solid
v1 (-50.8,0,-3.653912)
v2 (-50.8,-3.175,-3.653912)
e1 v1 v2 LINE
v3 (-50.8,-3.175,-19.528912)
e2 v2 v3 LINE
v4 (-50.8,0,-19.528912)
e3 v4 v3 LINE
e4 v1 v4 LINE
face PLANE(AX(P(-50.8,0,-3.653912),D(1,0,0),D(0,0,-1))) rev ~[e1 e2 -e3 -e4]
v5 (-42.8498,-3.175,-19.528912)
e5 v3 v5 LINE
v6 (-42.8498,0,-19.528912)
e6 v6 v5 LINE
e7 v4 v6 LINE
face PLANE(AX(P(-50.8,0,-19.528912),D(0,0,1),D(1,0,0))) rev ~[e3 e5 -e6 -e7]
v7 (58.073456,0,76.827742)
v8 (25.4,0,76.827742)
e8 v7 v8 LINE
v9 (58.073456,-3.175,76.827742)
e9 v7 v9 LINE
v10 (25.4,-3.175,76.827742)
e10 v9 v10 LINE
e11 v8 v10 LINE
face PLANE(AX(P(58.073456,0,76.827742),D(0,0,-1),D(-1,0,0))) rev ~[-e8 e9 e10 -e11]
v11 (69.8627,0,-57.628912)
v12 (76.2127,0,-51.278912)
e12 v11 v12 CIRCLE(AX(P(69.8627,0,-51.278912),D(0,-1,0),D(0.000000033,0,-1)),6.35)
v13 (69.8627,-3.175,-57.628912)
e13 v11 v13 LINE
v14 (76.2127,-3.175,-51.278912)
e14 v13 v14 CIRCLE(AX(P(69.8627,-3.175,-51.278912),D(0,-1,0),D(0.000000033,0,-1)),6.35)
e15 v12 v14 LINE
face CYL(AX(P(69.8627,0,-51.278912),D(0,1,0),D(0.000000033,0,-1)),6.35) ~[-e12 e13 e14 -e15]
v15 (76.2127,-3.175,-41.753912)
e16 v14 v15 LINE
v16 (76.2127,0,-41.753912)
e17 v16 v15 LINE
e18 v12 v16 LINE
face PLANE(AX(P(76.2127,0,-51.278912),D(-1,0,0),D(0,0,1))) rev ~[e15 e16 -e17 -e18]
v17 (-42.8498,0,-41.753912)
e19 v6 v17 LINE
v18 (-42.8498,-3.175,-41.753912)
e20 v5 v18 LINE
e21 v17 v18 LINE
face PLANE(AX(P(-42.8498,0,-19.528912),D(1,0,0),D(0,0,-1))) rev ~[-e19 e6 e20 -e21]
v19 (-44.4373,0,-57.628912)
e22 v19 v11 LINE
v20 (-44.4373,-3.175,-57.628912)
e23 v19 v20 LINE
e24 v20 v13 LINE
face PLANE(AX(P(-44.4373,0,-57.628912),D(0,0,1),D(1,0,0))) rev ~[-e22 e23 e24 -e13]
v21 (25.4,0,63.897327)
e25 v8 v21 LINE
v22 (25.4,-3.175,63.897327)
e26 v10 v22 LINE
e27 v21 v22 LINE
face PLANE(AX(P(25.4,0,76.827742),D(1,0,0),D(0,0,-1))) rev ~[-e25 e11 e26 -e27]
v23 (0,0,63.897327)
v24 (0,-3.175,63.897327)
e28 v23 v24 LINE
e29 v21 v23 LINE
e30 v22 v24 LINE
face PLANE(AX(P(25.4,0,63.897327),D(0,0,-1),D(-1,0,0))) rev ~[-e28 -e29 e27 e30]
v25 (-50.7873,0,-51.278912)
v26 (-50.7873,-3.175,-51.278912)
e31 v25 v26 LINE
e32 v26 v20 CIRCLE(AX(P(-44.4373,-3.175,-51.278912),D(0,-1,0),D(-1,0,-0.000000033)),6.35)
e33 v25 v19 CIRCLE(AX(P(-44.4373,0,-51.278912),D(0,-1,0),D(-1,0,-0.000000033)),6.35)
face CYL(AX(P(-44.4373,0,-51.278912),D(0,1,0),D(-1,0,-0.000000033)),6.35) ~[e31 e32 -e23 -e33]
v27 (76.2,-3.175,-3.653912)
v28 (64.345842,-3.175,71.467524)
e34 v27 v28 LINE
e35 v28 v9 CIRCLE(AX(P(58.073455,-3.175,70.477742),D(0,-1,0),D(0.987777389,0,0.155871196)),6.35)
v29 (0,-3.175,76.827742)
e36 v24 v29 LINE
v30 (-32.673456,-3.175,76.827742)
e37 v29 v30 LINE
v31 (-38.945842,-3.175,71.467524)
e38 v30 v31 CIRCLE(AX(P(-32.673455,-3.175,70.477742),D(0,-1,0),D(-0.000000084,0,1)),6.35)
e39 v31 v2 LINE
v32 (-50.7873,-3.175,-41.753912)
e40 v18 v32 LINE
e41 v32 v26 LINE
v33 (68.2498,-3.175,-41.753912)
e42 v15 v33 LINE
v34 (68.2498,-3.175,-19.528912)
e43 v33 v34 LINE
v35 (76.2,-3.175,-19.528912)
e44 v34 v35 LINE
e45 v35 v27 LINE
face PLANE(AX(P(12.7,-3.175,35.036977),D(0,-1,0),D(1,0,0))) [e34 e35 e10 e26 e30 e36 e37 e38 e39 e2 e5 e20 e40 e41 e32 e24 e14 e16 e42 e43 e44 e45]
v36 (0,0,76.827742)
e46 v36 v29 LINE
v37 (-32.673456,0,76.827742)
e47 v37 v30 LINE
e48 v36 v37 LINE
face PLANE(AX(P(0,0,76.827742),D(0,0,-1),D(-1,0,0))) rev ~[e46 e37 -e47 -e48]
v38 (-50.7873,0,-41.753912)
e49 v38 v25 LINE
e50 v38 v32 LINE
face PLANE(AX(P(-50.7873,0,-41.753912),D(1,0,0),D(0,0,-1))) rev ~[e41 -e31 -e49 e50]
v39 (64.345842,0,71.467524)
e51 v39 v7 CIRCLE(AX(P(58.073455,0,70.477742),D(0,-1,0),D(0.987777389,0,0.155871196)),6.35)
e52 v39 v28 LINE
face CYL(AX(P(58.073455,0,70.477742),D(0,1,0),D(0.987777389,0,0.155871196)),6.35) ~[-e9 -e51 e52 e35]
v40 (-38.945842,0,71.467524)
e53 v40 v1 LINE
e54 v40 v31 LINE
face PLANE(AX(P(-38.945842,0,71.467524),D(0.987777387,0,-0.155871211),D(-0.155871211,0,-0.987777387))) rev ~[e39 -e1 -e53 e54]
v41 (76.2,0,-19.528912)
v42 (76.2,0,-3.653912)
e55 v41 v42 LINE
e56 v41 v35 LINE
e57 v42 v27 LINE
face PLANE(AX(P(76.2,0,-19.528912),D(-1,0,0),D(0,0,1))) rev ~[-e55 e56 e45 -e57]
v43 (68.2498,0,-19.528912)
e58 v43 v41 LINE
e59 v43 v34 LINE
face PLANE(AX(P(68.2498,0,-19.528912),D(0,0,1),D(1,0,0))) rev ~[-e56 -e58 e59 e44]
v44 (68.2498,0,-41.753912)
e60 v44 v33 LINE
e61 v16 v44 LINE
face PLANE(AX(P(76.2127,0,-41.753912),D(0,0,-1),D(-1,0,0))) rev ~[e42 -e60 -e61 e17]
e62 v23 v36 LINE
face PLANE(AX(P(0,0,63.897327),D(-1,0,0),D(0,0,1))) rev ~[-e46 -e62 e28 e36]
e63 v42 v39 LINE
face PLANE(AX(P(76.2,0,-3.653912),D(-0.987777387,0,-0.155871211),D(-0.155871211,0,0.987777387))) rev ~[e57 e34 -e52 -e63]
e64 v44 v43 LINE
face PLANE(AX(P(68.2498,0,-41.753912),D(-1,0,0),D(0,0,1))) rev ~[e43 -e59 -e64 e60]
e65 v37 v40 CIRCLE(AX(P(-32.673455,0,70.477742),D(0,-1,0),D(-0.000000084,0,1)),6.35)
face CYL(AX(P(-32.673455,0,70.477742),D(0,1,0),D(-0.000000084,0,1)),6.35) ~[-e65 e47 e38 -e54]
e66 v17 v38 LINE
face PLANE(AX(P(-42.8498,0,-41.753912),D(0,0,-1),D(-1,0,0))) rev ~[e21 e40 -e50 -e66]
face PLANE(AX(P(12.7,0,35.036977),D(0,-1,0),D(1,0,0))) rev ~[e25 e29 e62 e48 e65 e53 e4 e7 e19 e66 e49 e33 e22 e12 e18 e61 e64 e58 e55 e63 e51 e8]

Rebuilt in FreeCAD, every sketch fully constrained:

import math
import FreeCAD as App
import Part
import Sketcher

V = App.Vector
Q = App.Units.Quantity

doc = App.newDocument("Part")
body = doc.addObject("PartDesign::Body", "Body")

# Sketch on XZ plane
sketch1 = doc.addObject("Sketcher::SketchObject", "Sketch")
body.addObject(sketch1)
sketch1.AttachmentSupport = (doc.XZ_Plane, [""])
sketch1.MapMode = "FlatFace"
sketch1.addGeometry([
    Part.LineSegment(V(-38.945842, 71.467524, 0), V(-50.8, -3.653912, 0)),  # 0
    Part.LineSegment(V(-50.8, -3.653912, 0), V(-50.8, -19.528912, 0)),  # 1
    Part.LineSegment(V(-50.8, -19.528912, 0), V(-42.8498, -19.528912, 0)),  # 2
    Part.LineSegment(V(-42.8498, -19.528912, 0), V(-42.8498, -41.753912, 0)),  # 3
    Part.LineSegment(V(-42.8498, -41.753912, 0), V(-50.7873, -41.753912, 0)),  # 4
    Part.LineSegment(V(-50.7873, -41.753912, 0), V(-50.7873, -51.278912, 0)),  # 5
    Part.ArcOfCircle(Part.Circle(V(-44.4373, -51.278912, 0), V(0, 0, 1), 6.35), math.radians(-179.999998), math.radians(-90.000002)),  # 6
    Part.LineSegment(V(-44.4373, -57.628912, 0), V(69.8627, -57.628912, 0)),  # 7
    Part.ArcOfCircle(Part.Circle(V(69.8627, -51.278912, 0), V(0, 0, 1), 6.35), math.radians(-89.999998), math.radians(-0.000002)),  # 8
    Part.LineSegment(V(76.2127, -51.278912, 0), V(76.2127, -41.753912, 0)),  # 9
    Part.LineSegment(V(76.2127, -41.753912, 0), V(68.2498, -41.753912, 0)),  # 10
    Part.LineSegment(V(68.2498, -41.753912, 0), V(68.2498, -19.528912, 0)),  # 11
    Part.LineSegment(V(68.2498, -19.528912, 0), V(76.2, -19.528912, 0)),  # 12
    Part.LineSegment(V(76.2, -19.528912, 0), V(76.2, -3.653912, 0)),  # 13
    Part.LineSegment(V(76.2, -3.653912, 0), V(64.345842, 71.467524, 0)),  # 14
    Part.ArcOfCircle(Part.Circle(V(58.073455, 70.477742, 0), V(0, 0, 1), 6.35), math.radians(8.967326), math.radians(89.999995)),  # 15
    Part.LineSegment(V(58.073456, 76.827742, 0), V(25.4, 76.827742, 0)),  # 16
    Part.LineSegment(V(25.4, 76.827742, 0), V(25.4, 63.897327, 0)),  # 17
    Part.LineSegment(V(25.4, 63.897327, 0), V(0, 63.897327, 0)),  # 18
    Part.LineSegment(V(0, 63.897327, 0), V(0, 76.827742, 0)),  # 19
    Part.LineSegment(V(0, 76.827742, 0), V(-32.673456, 76.827742, 0)),  # 20
    Part.ArcOfCircle(Part.Circle(V(-32.673455, 70.477742, 0), V(0, 0, 1), 6.35), math.radians(90.000005), math.radians(171.032674)),  # 21
], False)
sketch1.addConstraint([
    Sketcher.Constraint("Coincident", 0, 2, 1, 1),
    Sketcher.Constraint("Coincident", 1, 2, 2, 1),
    Sketcher.Constraint("Coincident", 2, 2, 3, 1),
    Sketcher.Constraint("Coincident", 3, 2, 4, 1),
    Sketcher.Constraint("Coincident", 4, 2, 5, 1),
    Sketcher.Constraint("Tangent", 5, 2, 6, 1),
    Sketcher.Constraint("Tangent", 6, 2, 7, 1),
    Sketcher.Constraint("Tangent", 7, 2, 8, 1),
    Sketcher.Constraint("Tangent", 8, 2, 9, 1),
    Sketcher.Constraint("Coincident", 9, 2, 10, 1),
    Sketcher.Constraint("Coincident", 10, 2, 11, 1),
    Sketcher.Constraint("Coincident", 11, 2, 12, 1),
    Sketcher.Constraint("Coincident", 12, 2, 13, 1),
    Sketcher.Constraint("Coincident", 13, 2, 14, 1),
    Sketcher.Constraint("Tangent", 14, 2, 15, 1),
    Sketcher.Constraint("Tangent", 15, 2, 16, 1),
    Sketcher.Constraint("Coincident", 16, 2, 17, 1),
    Sketcher.Constraint("Coincident", 17, 2, 18, 1),
    Sketcher.Constraint("Coincident", 18, 2, 19, 1),
    Sketcher.Constraint("Coincident", 19, 2, 20, 1),
    Sketcher.Constraint("Tangent", 20, 2, 21, 1),
    Sketcher.Constraint("Tangent", 21, 2, 0, 1),
    Sketcher.Constraint("Vertical", 1),
    Sketcher.Constraint("Horizontal", 2),
    Sketcher.Constraint("Vertical", 3),
    Sketcher.Constraint("Horizontal", 4),
    Sketcher.Constraint("Vertical", 5),
    Sketcher.Constraint("Horizontal", 7),
    Sketcher.Constraint("Vertical", 9),
    Sketcher.Constraint("Horizontal", 10),
    Sketcher.Constraint("Vertical", 11),
    Sketcher.Constraint("Horizontal", 12),
    Sketcher.Constraint("Vertical", 13),
    Sketcher.Constraint("Horizontal", 16),
    Sketcher.Constraint("Vertical", 17),
    Sketcher.Constraint("Horizontal", 18),
    Sketcher.Constraint("Vertical", 19),
    Sketcher.Constraint("Horizontal", 20),
    Sketcher.Constraint("Equal", 6, 8),
    Sketcher.Constraint("Equal", 8, 15),
    Sketcher.Constraint("Equal", 15, 21),
    Sketcher.Constraint("PointOnObject", 18, 2, -2),
    Sketcher.Constraint("Horizontal", 15, 3, 21, 3),
    Sketcher.Constraint("Horizontal", 4, 2, 9, 2),
    Sketcher.Constraint("Horizontal", 2, 2, 11, 2),
    Sketcher.Constraint("Horizontal", 0, 2, 13, 2),
    Sketcher.Constraint("Horizontal", 14, 2, 21, 2),
    Sketcher.Constraint("Equal", 2, 12),
    Sketcher.Constraint("Equal", 16, 20),
    Sketcher.Constraint("DistanceX", 18, 2, 18, 1, Q("1 in")),
    Sketcher.Constraint("Radius", 6, Q("0.25 in")),
    Sketcher.Constraint("DistanceX", 7, 1, 7, 2, Q("4.5 in")),
    Sketcher.Constraint("DistanceX", 0, 2, -1, 1, Q("2 in")),
    Sketcher.Constraint("DistanceY", 3, 2, 0, 2, Q("1.5 in")),
    Sketcher.Constraint("DistanceY", 6, 2, 2, 2, Q("1.5 in")),
    Sketcher.Constraint("DistanceX", 2, 1, 2, 2, Q("0.313 in")),
    Sketcher.Constraint("DistanceX", 4, 2, 4, 1, Q("0.3125 in")),
    Sketcher.Constraint("DistanceY", 1, 2, 1, 1, Q("0.625 in")),
    Sketcher.Constraint("DistanceX", 16, 2, 16, 1, 32.673456),
    Sketcher.Constraint("DistanceY", 17, 2, 17, 1, 12.930415),
    Sketcher.Constraint("DistanceY", 6, 3, -1, 1, 51.278912),
    Sketcher.Constraint("DistanceY", -1, 1, 15, 3, 70.477742),
])
pad1 = doc.addObject("PartDesign::Pad", "Pad")
body.addObject(pad1)
pad1.Profile = sketch1
pad1.Length = Q("0.125 in")

doc.recompute()
